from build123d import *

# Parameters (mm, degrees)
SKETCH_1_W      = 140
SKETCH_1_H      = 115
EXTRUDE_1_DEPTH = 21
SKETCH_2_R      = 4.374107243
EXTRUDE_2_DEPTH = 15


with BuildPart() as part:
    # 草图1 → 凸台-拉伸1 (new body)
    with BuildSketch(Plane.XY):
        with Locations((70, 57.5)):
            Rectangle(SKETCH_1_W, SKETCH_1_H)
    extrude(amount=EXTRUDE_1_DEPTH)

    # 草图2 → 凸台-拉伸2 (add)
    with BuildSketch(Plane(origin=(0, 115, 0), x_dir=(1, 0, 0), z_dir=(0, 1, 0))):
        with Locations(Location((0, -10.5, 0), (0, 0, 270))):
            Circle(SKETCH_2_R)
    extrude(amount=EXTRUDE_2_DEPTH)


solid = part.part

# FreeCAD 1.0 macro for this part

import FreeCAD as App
import Part
import Sketcher
Q = App.Units.Quantity

doc = App.newDocument("Part")
body = doc.addObject("PartDesign::Body", "Body")

# Sketch on XY plane
sketch1 = body.newObject("Sketcher::SketchObject", "Sketch")
sketch1.AttachmentSupport = (doc.getObject("XY_Plane"), [""])
sketch1.MapMode = "FlatFace"
sketch1.addGeometry([
    Part.LineSegment(App.Vector(0, 115, 0), App.Vector(0, 0, 0)),
    Part.LineSegment(App.Vector(0, 0, 0), App.Vector(140, 0, 0)),
    Part.LineSegment(App.Vector(140, 0, 0), App.Vector(140, 115, 0)),
    Part.LineSegment(App.Vector(140, 115, 0), App.Vector(0, 115, 0)),
], False)
sketch1.addConstraint([
    Sketcher.Constraint("Coincident", 0, 2, 1, 1),
    Sketcher.Constraint("Coincident", 1, 2, 2, 1),
    Sketcher.Constraint("Coincident", 2, 2, 3, 1),
    Sketcher.Constraint("Coincident", 3, 2, 0, 1),
    Sketcher.Constraint("Vertical", 0),
    Sketcher.Constraint("Horizontal", 1),
    Sketcher.Constraint("Vertical", 2),
    Sketcher.Constraint("Horizontal", 3),
    Sketcher.Constraint("Coincident", 0, 2, -1, 1),
    Sketcher.Constraint("DistanceX", 1, 1, 1, 2, Q("140 mm")),
    Sketcher.Constraint("DistanceY", 0, 2, 0, 1, Q("115 mm")),
])
pad1 = body.newObject("PartDesign::Pad", "Pad")
pad1.Profile = sketch1
pad1.Length = 21

# Sketch on XZ plane
sketch2 = body.newObject("Sketcher::SketchObject", "Sketch001")
sketch2.AttachmentSupport = (doc.getObject("XZ_Plane"), [""])
sketch2.MapMode = "FlatFace"
sketch2.AttachmentOffset = App.Placement(App.Vector(0, 0, -115), App.Rotation())
sketch2.addGeometry(Part.Circle(App.Vector(0, 10.5, 0), App.Vector(0, 0, 1), 4.4), False)
sketch2.addConstraint([
    Sketcher.Constraint("PointOnObject", 0, 3, -2),
    Sketcher.Constraint("DistanceY", -1, 1, 0, 3, Q("10.5 mm")),
    Sketcher.Constraint("Diameter", 0, Q("8.748214 mm")),
])
pad2 = body.newObject("PartDesign::Pad", "Pad001")
pad2.Profile = sketch2
pad2.Length = 15
pad2.Reversed = True

doc.recompute()
